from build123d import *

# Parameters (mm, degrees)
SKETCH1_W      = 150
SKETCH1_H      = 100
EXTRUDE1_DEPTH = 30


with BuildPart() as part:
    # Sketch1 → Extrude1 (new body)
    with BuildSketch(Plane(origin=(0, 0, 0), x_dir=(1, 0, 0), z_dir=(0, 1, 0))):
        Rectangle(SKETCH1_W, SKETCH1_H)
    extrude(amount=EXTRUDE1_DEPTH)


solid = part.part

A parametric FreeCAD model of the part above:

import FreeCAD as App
import Part
import Sketcher

doc = App.newDocument("Part")
body = doc.addObject("PartDesign::Body", "Body")

# Sketch on XZ plane
sketch1 = doc.addObject("Sketcher::SketchObject", "Sketch")
body.addObject(sketch1)
sketch1.AttachmentSupport = (doc.XZ_Plane, [""])
sketch1.MapMode = "FlatFace"
sketch1.addGeometry(Part.LineSegment(App.Vector(-75, -50, 0), App.Vector(-75, 50, 0)), False)
sketch1.addGeometry(Part.LineSegment(App.Vector(-75, 50, 0), App.Vector(75, 50, 0)), False)
sketch1.addGeometry(Part.LineSegment(App.Vector(75, 50, 0), App.Vector(75, -50, 0)), False)
sketch1.addGeometry(Part.LineSegment(App.Vector(75, -50, 0), App.Vector(-75, -50, 0)), False)
sketch1.addConstraint(Sketcher.Constraint("Coincident", 0, 2, 1, 1))
sketch1.addConstraint(Sketcher.Constraint("Coincident", 1, 2, 2, 1))
sketch1.addConstraint(Sketcher.Constraint("Coincident", 2, 2, 3, 1))
sketch1.addConstraint(Sketcher.Constraint("Coincident", 3, 2, 0, 1))
sketch1.addConstraint(Sketcher.Constraint("Vertical", 0))
sketch1.addConstraint(Sketcher.Constraint("Horizontal", 1))
sketch1.addConstraint(Sketcher.Constraint("Vertical", 2))
sketch1.addConstraint(Sketcher.Constraint("Horizontal", 3))
sketch1.addConstraint(Sketcher.Constraint("Symmetric", 0, 2, 2, 2, -1, 1))
sketch1.addConstraint(Sketcher.Constraint("DistanceX", 1, 1, 1, 2, 150.0))
sketch1.addConstraint(Sketcher.Constraint("DistanceY", 0, 1, 0, 2, 100.0))
pad1 = doc.addObject("PartDesign::Pad", "Pad")
body.addObject(pad1)
pad1.Profile = sketch1
pad1.Length = 30
pad1.Reversed = True

doc.recompute()
